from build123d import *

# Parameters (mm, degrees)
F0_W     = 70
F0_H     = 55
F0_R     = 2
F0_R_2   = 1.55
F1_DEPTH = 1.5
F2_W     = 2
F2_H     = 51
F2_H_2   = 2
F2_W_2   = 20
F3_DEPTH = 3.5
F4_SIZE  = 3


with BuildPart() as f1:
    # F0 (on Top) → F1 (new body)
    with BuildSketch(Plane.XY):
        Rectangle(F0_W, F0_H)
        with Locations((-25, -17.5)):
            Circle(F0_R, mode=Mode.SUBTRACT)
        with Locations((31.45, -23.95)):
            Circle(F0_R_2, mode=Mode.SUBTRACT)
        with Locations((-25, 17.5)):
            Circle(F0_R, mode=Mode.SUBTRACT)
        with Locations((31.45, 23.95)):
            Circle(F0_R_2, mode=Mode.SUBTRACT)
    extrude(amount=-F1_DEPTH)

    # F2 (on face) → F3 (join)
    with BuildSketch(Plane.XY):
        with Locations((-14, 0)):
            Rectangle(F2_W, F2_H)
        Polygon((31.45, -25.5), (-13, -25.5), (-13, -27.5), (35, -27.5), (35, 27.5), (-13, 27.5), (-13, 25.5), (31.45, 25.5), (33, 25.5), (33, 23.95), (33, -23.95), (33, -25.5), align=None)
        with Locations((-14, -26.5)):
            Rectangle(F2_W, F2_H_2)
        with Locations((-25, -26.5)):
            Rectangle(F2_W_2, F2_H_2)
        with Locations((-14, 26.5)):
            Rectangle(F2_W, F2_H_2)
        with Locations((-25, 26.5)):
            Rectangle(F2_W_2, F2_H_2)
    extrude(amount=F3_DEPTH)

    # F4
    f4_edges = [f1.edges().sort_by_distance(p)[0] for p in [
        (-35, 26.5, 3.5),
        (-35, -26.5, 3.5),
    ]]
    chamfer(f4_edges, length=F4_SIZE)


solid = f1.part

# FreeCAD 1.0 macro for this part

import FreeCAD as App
import Part
import Sketcher


def edges_at(feature, points):
    """Names of the edges that pass closest to the given points."""
    edges = feature.Shape.Edges
    near = lambda p: min(range(len(edges)), key=lambda i: edges[i].distToShape(Part.Vertex(*p))[0])
    return sorted({f"Edge{near(p) + 1}" for p in points})

doc = App.newDocument("Part")
body = doc.addObject("PartDesign::Body", "Body")

# Sketch on XY plane
sketch1 = body.newObject("Sketcher::SketchObject", "Sketch")
sketch1.AttachmentSupport = (doc.getObject("XY_Plane"), [""])
sketch1.MapMode = "FlatFace"
sketch1.addGeometry(Part.LineSegment(App.Vector(-35, 27.5, 0), App.Vector(-35, -27.5, 0)), False)
sketch1.addGeometry(Part.LineSegment(App.Vector(-35, -27.5, 0), App.Vector(35, -27.5, 0)), False)
sketch1.addGeometry(Part.LineSegment(App.Vector(35, -27.5, 0), App.Vector(35, 27.5, 0)), False)
sketch1.addGeometry(Part.LineSegment(App.Vector(35, 27.5, 0), App.Vector(-35, 27.5, 0)), False)
sketch1.addGeometry(Part.Circle(App.Vector(-25, -17.5, 0), App.Vector(0, 0, 1), 2), False)
sketch1.addGeometry(Part.Circle(App.Vector(31.4, -23.9, 0), App.Vector(0, 0, 1), 1.6), False)
sketch1.addGeometry(Part.Circle(App.Vector(-25, 17.5, 0), App.Vector(0, 0, 1), 2), False)
sketch1.addGeometry(Part.Circle(App.Vector(31.4, 23.9, 0), App.Vector(0, 0, 1), 1.6), False)
sketch1.addConstraint(Sketcher.Constraint("Coincident", 0, 2, 1, 1))
sketch1.addConstraint(Sketcher.Constraint("Coincident", 1, 2, 2, 1))
sketch1.addConstraint(Sketcher.Constraint("Coincident", 2, 2, 3, 1))
sketch1.addConstraint(Sketcher.Constraint("Coincident", 3, 2, 0, 1))
sketch1.addConstraint(Sketcher.Constraint("Vertical", 0))
sketch1.addConstraint(Sketcher.Constraint("Horizontal", 1))
sketch1.addConstraint(Sketcher.Constraint("Vertical", 2))
sketch1.addConstraint(Sketcher.Constraint("Horizontal", 3))
sketch1.addConstraint(Sketcher.Constraint("Equal", 4, 6))
sketch1.addConstraint(Sketcher.Constraint("Equal", 5, 7))
sketch1.addConstraint(Sketcher.Constraint("Symmetric", 0, 2, 2, 2, -1, 1))
sketch1.addConstraint(Sketcher.Constraint("Symmetric", 4, 3, 6, 3, -1))
sketch1.addConstraint(Sketcher.Constraint("Symmetric", 5, 3, 7, 3, -1))
sketch1.addConstraint(Sketcher.Constraint("Diameter", 4, 4.0))
sketch1.addConstraint(Sketcher.Constraint("Diameter", 5, 3.1))
sketch1.addConstraint(Sketcher.Constraint("DistanceX", 1, 1, 1, 2, 70.0))
sketch1.addConstraint(Sketcher.Constraint("DistanceY", 0, 2, 0, 1, 55.0))
sketch1.addConstraint(Sketcher.Constraint("DistanceX", 4, 3, -1, 1, 25.0))
sketch1.addConstraint(Sketcher.Constraint("DistanceY", 4, 3, 6, 3, 35.0))
sketch1.addConstraint(Sketcher.Constraint("DistanceY", 5, 3, 7, 3, 47.9))
sketch1.addConstraint(Sketcher.Constraint("DistanceX", -1, 1, 5, 3, 31.45))
pad1 = body.newObject("PartDesign::Pad", "Pad")
pad1.Profile = sketch1
pad1.Length = 1.5
pad1.Reversed = True

# Sketch on XY plane
sketch2 = body.newObject("Sketcher::SketchObject", "Sketch001")
sketch2.AttachmentSupport = (doc.getObject("XY_Plane"), [""])
sketch2.MapMode = "FlatFace"
sketch2.addGeometry(Part.LineSegment(App.Vector(35, 27.5, 0), App.Vector(-35, 27.5, 0)), False)
sketch2.addGeometry(Part.LineSegment(App.Vector(-35, 27.5, 0), App.Vector(-35, 25.5, 0)), False)
sketch2.addGeometry(Part.LineSegment(App.Vector(-35, 25.5, 0), App.Vector(-15, 25.5, 0)), False)
sketch2.addGeometry(Part.LineSegment(App.Vector(-15, 25.5, 0), App.Vector(-15, -25.5, 0)), False)
sketch2.addGeometry(Part.LineSegment(App.Vector(-15, -25.5, 0), App.Vector(-35, -25.5, 0)), False)
sketch2.addGeometry(Part.LineSegment(App.Vector(-35, -25.5, 0), App.Vector(-35, -27.5, 0)), False)
sketch2.addGeometry(Part.LineSegment(App.Vector(-35, -27.5, 0), App.Vector(35, -27.5, 0)), False)
sketch2.addGeometry(Part.LineSegment(App.Vector(35, -27.5, 0), App.Vector(35, 27.5, 0)), False)
sketch2.addGeometry(Part.LineSegment(App.Vector(-13, -25.5, 0), App.Vector(-13, 25.5, 0)), False)
sketch2.addGeometry(Part.LineSegment(App.Vector(-13, 25.5, 0), App.Vector(33, 25.5, 0)), False)
sketch2.addGeometry(Part.LineSegment(App.Vector(33, 25.5, 0), App.Vector(33, -25.5, 0)), False)
sketch2.addGeometry(Part.LineSegment(App.Vector(33, -25.5, 0), App.Vector(-13, -25.5, 0)), False)
sketch2.addConstraint(Sketcher.Constraint("Coincident", 0, 2, 1, 1))
sketch2.addConstraint(Sketcher.Constraint("Coincident", 1, 2, 2, 1))
sketch2.addConstraint(Sketcher.Constraint("Coincident", 2, 2, 3, 1))
sketch2.addConstraint(Sketcher.Constraint("Coincident", 3, 2, 4, 1))
sketch2.addConstraint(Sketcher.Constraint("Coincident", 4, 2, 5, 1))
sketch2.addConstraint(Sketcher.Constraint("Coincident", 5, 2, 6, 1))
sketch2.addConstraint(Sketcher.Constraint("Coincident", 6, 2, 7, 1))
sketch2.addConstraint(Sketcher.Constraint("Coincident", 7, 2, 0, 1))
sketch2.addConstraint(Sketcher.Constraint("Coincident", 8, 2, 9, 1))
sketch2.addConstraint(Sketcher.Constraint("Coincident", 9, 2, 10, 1))
sketch2.addConstraint(Sketcher.Constraint("Coincident", 10, 2, 11, 1))
sketch2.addConstraint(Sketcher.Constraint("Coincident", 11, 2, 8, 1))
sketch2.addConstraint(Sketcher.Constraint("Horizontal", 0))
sketch2.addConstraint(Sketcher.Constraint("Vertical", 1))
sketch2.addConstraint(Sketcher.Constraint("Horizontal", 2))
sketch2.addConstraint(Sketcher.Constraint("Vertical", 3))
sketch2.addConstraint(Sketcher.Constraint("Horizontal", 4))
sketch2.addConstraint(Sketcher.Constraint("Vertical", 5))
sketch2.addConstraint(Sketcher.Constraint("Horizontal", 6))
sketch2.addConstraint(Sketcher.Constraint("Vertical", 7))
sketch2.addConstraint(Sketcher.Constraint("Vertical", 8))
sketch2.addConstraint(Sketcher.Constraint("Horizontal", 9))
sketch2.addConstraint(Sketcher.Constraint("Vertical", 10))
sketch2.addConstraint(Sketcher.Constraint("Horizontal", 11))
sketch2.addConstraint(Sketcher.Constraint("Symmetric", 0, 2, 6, 2, -1, 1))
sketch2.addConstraint(Sketcher.Constraint("Symmetric", 1, 2, 4, 2, -1))
sketch2.addConstraint(Sketcher.Constraint("Horizontal", 2, 2, 8, 2))
sketch2.addConstraint(Sketcher.Constraint("Horizontal", 4, 2, 10, 2))
sketch2.addConstraint(Sketcher.Constraint("DistanceX", 0, 2, 0, 1, 70.0))
sketch2.addConstraint(Sketcher.Constraint("DistanceX", 2, 1, 2, 2, 20.0))
sketch2.addConstraint(Sketcher.Constraint("DistanceX", 9, 1, 9, 2, 46.0))
sketch2.addConstraint(Sketcher.Constraint("DistanceY", 1, 2, 1, 1, 2.0))
sketch2.addConstraint(Sketcher.Constraint("DistanceY", 3, 2, 3, 1, 51.0))
sketch2.addConstraint(Sketcher.Constraint("DistanceX", 8, 2, -1, 1, 13.0))
pad2 = body.newObject("PartDesign::Pad", "Pad001")
pad2.Profile = sketch2
pad2.Length = 3.5
doc.recompute()

chamfer = body.newObject("PartDesign::Chamfer", "Chamfer")
chamfer.Base = (pad2, edges_at(pad2, [(-35, 26.5, 3.5), (-35, -26.5, 3.5)]))
chamfer.Size = 3

doc.recompute()
